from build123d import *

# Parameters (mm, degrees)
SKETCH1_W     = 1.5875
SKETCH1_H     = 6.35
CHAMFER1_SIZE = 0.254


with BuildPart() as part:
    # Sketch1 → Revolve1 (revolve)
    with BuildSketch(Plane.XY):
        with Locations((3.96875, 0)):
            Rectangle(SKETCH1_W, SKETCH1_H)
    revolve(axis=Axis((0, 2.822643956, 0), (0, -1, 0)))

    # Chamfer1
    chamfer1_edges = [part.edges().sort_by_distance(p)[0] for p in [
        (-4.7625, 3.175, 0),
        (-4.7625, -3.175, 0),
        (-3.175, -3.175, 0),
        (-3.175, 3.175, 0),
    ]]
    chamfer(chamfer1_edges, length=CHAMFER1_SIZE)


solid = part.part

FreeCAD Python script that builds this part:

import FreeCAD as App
import Part
import Sketcher
Q = App.Units.Quantity


def edges_at(feature, points):
    """Names of the edges that pass closest to the given points."""
    edges = feature.Shape.Edges
    near = lambda p: min(range(len(edges)), key=lambda i: edges[i].distToShape(Part.Vertex(*p))[0])
    return sorted({f"Edge{near(p) + 1}" for p in points})

doc = App.newDocument("Part")
body = doc.addObject("PartDesign::Body", "Body")

# Sketch on XY plane
sketch1 = body.newObject("Sketcher::SketchObject", "Sketch")
sketch1.AttachmentSupport = (doc.getObject("XY_Plane"), [""])
sketch1.MapMode = "FlatFace"
sketch1.addGeometry(Part.LineSegment(App.Vector(3.2, 3.2, 0), App.Vector(3.2, -3.2, 0)), False)
sketch1.addGeometry(Part.LineSegment(App.Vector(3.2, -3.2, 0), App.Vector(4.8, -3.2, 0)), False)
sketch1.addGeometry(Part.LineSegment(App.Vector(4.8, -3.2, 0), App.Vector(4.8, 3.2, 0)), False)
sketch1.addGeometry(Part.LineSegment(App.Vector(4.8, 3.2, 0), App.Vector(3.2, 3.2, 0)), False)
sketch1.addConstraint(Sketcher.Constraint("Coincident", 0, 2, 1, 1))
sketch1.addConstraint(Sketcher.Constraint("Coincident", 1, 2, 2, 1))
sketch1.addConstraint(Sketcher.Constraint("Coincident", 2, 2, 3, 1))
sketch1.addConstraint(Sketcher.Constraint("Coincident", 3, 2, 0, 1))
sketch1.addConstraint(Sketcher.Constraint("Vertical", 0))
sketch1.addConstraint(Sketcher.Constraint("Horizontal", 1))
sketch1.addConstraint(Sketcher.Constraint("Vertical", 2))
sketch1.addConstraint(Sketcher.Constraint("Horizontal", 3))
sketch1.addConstraint(Sketcher.Constraint("DistanceY", 0, 2, 0, 1, Q("0.25 in")))
sketch1.addConstraint(Sketcher.Constraint("DistanceX", 1, 1, 1, 2, Q("0.0625 in")))
sketch1.addConstraint(Sketcher.Constraint("DistanceX", -1, 1, 0, 2, Q("0.125 in")))
sketch1.addConstraint(Sketcher.Constraint("DistanceY", 0, 2, -1, 1, Q("0.125 in")))
revolution = body.newObject("PartDesign::Revolution", "Revolution")
revolution.Profile = sketch1
revolution.ReferenceAxis = (sketch1, ["V_Axis"])
revolution.Angle = 360
doc.recompute()

chamfer = body.newObject("PartDesign::Chamfer", "Chamfer")
chamfer.Base = (revolution, edges_at(revolution, [
    (-4.763, 3.175, 0),
    (-4.763, -3.175, 0),
    (-3.175, -3.175, 0),
    (-3.175, 3.175, 0),
]))
chamfer.Size = Q("0.01 in")

doc.recompute()
